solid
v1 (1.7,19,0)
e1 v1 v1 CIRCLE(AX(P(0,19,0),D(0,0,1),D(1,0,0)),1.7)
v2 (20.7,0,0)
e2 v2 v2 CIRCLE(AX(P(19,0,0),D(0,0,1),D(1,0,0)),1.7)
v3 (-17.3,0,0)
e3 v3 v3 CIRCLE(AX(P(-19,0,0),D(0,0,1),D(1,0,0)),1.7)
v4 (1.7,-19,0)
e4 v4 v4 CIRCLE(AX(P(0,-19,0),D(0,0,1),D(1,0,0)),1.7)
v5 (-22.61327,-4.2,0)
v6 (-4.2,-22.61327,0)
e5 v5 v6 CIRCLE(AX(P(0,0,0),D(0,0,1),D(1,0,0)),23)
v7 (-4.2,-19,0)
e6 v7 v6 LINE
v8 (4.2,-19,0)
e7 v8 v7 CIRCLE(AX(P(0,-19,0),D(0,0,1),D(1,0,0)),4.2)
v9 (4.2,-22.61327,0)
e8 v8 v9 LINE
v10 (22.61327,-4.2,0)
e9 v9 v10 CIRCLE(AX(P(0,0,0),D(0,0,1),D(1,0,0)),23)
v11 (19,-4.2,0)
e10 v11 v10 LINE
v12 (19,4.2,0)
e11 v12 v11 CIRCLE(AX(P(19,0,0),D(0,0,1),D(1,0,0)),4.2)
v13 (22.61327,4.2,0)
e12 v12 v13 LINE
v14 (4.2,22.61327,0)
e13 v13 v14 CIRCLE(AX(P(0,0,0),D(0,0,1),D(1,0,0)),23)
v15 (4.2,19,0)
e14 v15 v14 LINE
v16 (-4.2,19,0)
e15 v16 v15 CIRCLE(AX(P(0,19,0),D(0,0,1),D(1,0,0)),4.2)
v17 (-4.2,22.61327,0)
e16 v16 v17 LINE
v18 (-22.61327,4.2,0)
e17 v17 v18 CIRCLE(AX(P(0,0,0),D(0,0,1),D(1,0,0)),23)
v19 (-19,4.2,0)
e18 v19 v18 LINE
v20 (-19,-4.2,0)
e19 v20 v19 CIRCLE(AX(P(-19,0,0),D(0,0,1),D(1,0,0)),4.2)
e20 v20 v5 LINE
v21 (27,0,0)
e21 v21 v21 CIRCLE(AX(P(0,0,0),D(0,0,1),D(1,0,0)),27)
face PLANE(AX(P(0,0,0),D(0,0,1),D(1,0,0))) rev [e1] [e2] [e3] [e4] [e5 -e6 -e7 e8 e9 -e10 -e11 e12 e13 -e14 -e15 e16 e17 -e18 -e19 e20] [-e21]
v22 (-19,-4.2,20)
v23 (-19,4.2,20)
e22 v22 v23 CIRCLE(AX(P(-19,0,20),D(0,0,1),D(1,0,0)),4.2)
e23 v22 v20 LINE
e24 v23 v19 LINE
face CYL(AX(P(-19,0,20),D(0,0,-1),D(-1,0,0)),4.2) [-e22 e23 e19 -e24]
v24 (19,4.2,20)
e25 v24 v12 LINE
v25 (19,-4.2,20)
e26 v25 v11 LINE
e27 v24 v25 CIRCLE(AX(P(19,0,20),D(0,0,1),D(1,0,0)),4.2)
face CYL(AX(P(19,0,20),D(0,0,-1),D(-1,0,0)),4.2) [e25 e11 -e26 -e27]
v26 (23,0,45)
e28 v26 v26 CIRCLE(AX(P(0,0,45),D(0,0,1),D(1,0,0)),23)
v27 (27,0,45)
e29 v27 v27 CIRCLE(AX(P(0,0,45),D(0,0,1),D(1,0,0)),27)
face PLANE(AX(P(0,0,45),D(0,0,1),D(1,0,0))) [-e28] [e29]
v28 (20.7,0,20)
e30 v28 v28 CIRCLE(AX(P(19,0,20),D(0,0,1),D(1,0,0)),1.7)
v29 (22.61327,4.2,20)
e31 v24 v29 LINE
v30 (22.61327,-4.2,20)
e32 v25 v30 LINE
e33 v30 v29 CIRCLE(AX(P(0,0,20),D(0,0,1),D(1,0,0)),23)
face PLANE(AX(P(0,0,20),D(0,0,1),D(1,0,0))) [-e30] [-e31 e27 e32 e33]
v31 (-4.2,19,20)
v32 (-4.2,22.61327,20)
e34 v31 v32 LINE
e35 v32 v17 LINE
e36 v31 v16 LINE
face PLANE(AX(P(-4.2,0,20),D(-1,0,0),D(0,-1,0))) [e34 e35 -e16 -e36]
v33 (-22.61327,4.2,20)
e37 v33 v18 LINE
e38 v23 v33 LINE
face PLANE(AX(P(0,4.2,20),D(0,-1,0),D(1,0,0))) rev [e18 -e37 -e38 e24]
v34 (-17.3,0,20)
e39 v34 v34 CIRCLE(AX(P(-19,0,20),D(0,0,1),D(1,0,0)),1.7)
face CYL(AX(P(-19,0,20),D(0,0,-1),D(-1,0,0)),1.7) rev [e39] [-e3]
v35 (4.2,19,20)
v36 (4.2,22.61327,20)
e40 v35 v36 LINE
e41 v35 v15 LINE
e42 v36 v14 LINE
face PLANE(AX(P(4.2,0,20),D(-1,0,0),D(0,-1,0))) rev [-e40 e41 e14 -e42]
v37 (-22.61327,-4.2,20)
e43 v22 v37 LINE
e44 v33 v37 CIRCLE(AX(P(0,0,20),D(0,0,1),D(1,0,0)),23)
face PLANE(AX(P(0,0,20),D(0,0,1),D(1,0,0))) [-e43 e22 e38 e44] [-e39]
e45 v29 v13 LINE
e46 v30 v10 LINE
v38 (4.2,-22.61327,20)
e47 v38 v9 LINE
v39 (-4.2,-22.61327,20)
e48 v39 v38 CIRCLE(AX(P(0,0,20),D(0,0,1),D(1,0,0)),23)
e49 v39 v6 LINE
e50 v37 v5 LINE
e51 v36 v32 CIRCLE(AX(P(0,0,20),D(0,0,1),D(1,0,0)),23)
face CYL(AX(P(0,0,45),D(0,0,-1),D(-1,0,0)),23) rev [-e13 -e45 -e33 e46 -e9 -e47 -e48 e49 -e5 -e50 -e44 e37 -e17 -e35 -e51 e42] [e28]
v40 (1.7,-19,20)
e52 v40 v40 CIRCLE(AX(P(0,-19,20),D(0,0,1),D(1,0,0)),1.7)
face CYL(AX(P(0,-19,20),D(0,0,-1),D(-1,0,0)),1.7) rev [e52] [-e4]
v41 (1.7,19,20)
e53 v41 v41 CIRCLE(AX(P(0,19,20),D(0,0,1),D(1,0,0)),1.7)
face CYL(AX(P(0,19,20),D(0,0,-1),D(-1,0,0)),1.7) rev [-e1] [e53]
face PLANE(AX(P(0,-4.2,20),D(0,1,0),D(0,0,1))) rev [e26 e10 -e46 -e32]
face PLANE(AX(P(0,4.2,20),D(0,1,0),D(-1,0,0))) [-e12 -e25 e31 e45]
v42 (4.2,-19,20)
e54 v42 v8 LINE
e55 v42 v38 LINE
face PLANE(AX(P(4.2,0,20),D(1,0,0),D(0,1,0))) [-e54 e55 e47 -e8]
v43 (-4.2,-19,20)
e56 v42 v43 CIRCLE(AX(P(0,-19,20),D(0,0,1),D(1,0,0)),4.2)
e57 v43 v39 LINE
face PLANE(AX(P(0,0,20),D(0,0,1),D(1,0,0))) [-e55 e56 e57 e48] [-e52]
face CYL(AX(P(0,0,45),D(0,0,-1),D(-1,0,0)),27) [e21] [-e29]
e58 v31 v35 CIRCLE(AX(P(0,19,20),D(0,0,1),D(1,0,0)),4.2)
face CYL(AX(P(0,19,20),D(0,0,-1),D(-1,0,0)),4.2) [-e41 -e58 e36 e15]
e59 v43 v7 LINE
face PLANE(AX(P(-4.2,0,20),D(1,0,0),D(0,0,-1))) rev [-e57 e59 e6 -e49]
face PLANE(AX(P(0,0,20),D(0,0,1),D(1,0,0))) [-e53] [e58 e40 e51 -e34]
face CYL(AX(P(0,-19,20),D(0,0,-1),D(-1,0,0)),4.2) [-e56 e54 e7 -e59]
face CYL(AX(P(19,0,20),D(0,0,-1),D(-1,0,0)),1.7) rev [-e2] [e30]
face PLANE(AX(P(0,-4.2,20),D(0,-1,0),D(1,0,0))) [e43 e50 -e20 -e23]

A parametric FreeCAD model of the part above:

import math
import FreeCAD as App
import Part
import Sketcher

doc = App.newDocument("Part")
body = doc.addObject("PartDesign::Body", "Body")

sketch1 = body.newObject("Sketcher::SketchObject", "Sketch")
sketch1.AttachmentSupport = (doc.getObject("XY_Plane"), [""])
sketch1.MapMode = "FlatFace"
sketch1.addGeometry(Part.Circle(App.Vector(0, 0, 0), App.Vector(0, 0, 1), 27), False)
sketch1.addGeometry(Part.Circle(App.Vector(0, 0, 0), App.Vector(0, 0, 1), 23), False)
sketch1.addConstraint(Sketcher.Constraint("Coincident", 0, 3, -1, 1))
sketch1.addConstraint(Sketcher.Constraint("Coincident", 1, 3, -1, 1))
sketch1.addConstraint(Sketcher.Constraint("Diameter", 0, 54.0))
sketch1.addConstraint(Sketcher.Constraint("Diameter", 1, 46.0))
pad1 = body.newObject("PartDesign::Pad", "Pad")
pad1.Profile = sketch1
pad1.Length = 45

sketch2 = body.newObject("Sketcher::SketchObject", "Sketch001")
sketch2.AttachmentSupport = (doc.getObject("XY_Plane"), [""])
sketch2.MapMode = "FlatFace"
sketch2.addGeometry(Part.ArcOfCircle(Part.Circle(App.Vector(0, 0, 0), App.Vector(0, 0, 1), 23), math.radians(0), math.radians(10.52)), False)
sketch2.addGeometry(Part.LineSegment(App.Vector(22.6, 4.2, 0), App.Vector(19, 4.2, 0)), False)
sketch2.addGeometry(Part.ArcOfCircle(Part.Circle(App.Vector(19, 0, 0), App.Vector(0, 0, 1), 4.2), math.radians(90), math.radians(270)), False)
sketch2.addGeometry(Part.LineSegment(App.Vector(19, -4.2, 0), App.Vector(22.6, -4.2, 0)), False)
sketch2.addGeometry(Part.ArcOfCircle(Part.Circle(App.Vector(0, 0, 0), App.Vector(0, 0, 1), 23), math.radians(-10.52), math.radians(0)), False)
sketch2.addGeometry(Part.Circle(App.Vector(19, 0, 0), App.Vector(0, 0, 1), 1.7), False)
sketch2.addGeometry(Part.LineSegment(App.Vector(-4.2, -19, 0), App.Vector(-4.2, -22.6, 0)), False)
sketch2.addGeometry(Part.ArcOfCircle(Part.Circle(App.Vector(0, 0, 0), App.Vector(0, 0, 1), 23), math.radians(-101), math.radians(-79)), False)
sketch2.addGeometry(Part.LineSegment(App.Vector(4.2, -22.6, 0), App.Vector(4.2, -19, 0)), False)
sketch2.addGeometry(Part.ArcOfCircle(Part.Circle(App.Vector(0, -19, 0), App.Vector(0, 0, 1), 4.2), math.radians(0), math.radians(180)), False)
sketch2.addGeometry(Part.Circle(App.Vector(0, -19, 0), App.Vector(0, 0, 1), 1.7), False)
sketch2.addGeometry(Part.LineSegment(App.Vector(-19, 4.2, 0), App.Vector(-22.6, 4.2, 0)), False)
sketch2.addGeometry(Part.ArcOfCircle(Part.Circle(App.Vector(0, 0, 0), App.Vector(0, 0, 1), 23), math.radians(169), math.radians(191)), False)
sketch2.addGeometry(Part.LineSegment(App.Vector(-22.6, -4.2, 0), App.Vector(-19, -4.2, 0)), False)
sketch2.addGeometry(Part.ArcOfCircle(Part.Circle(App.Vector(-19, 0, 0), App.Vector(0, 0, 1), 4.2), math.radians(-90), math.radians(90)), False)
sketch2.addGeometry(Part.Circle(App.Vector(-19, 0, 0), App.Vector(0, 0, 1), 1.7), False)
sketch2.addGeometry(Part.LineSegment(App.Vector(-4.2, 22.6, 0), App.Vector(-4.2, 19, 0)), False)
sketch2.addGeometry(Part.ArcOfCircle(Part.Circle(App.Vector(0, 19, 0), App.Vector(0, 0, 1), 4.2), math.radians(180), math.radians(360)), False)
sketch2.addGeometry(Part.LineSegment(App.Vector(4.2, 19, 0), App.Vector(4.2, 22.6, 0)), False)
sketch2.addGeometry(Part.ArcOfCircle(Part.Circle(App.Vector(0, 0, 0), App.Vector(0, 0, 1), 23), math.radians(79), math.radians(101)), False)
sketch2.addGeometry(Part.Circle(App.Vector(0, 19, 0), App.Vector(0, 0, 1), 1.7), False)
sketch2.addConstraint(Sketcher.Constraint("Coincident", 0, 2, 1, 1))
sketch2.addConstraint(Sketcher.Constraint("Tangent", 1, 2, 2, 1))
sketch2.addConstraint(Sketcher.Constraint("Tangent", 2, 2, 3, 1))
sketch2.addConstraint(Sketcher.Constraint("Coincident", 3, 2, 4, 1))
sketch2.addConstraint(Sketcher.Constraint("Tangent", 4, 2, 0, 1))
sketch2.addConstraint(Sketcher.Constraint("Coincident", 6, 2, 7, 1))
sketch2.addConstraint(Sketcher.Constraint("Coincident", 7, 2, 8, 1))
sketch2.addConstraint(Sketcher.Constraint("Tangent", 8, 2, 9, 1))
sketch2.addConstraint(Sketcher.Constraint("Tangent", 9, 2, 6, 1))
sketch2.addConstraint(Sketcher.Constraint("Coincident", 11, 2, 12, 1))
sketch2.addConstraint(Sketcher.Constraint("Coincident", 12, 2, 13, 1))
sketch2.addConstraint(Sketcher.Constraint("Tangent", 13, 2, 14, 1))
sketch2.addConstraint(Sketcher.Constraint("Tangent", 14, 2, 11, 1))
sketch2.addConstraint(Sketcher.Constraint("Tangent", 16, 2, 17, 1))
sketch2.addConstraint(Sketcher.Constraint("Tangent", 17, 2, 18, 1))
sketch2.addConstraint(Sketcher.Constraint("Coincident", 18, 2, 19, 1))
sketch2.addConstraint(Sketcher.Constraint("Coincident", 19, 2, 16, 1))
sketch2.addConstraint(Sketcher.Constraint("Horizontal", 1))
sketch2.addConstraint(Sketcher.Constraint("Horizontal", 3))
sketch2.addConstraint(Sketcher.Constraint("Vertical", 6))
sketch2.addConstraint(Sketcher.Constraint("Vertical", 8))
sketch2.addConstraint(Sketcher.Constraint("Horizontal", 11))
sketch2.addConstraint(Sketcher.Constraint("Horizontal", 13))
sketch2.addConstraint(Sketcher.Constraint("Vertical", 16))
sketch2.addConstraint(Sketcher.Constraint("Vertical", 18))
sketch2.addConstraint(Sketcher.Constraint("Coincident", 0, 3, -1, 1))
sketch2.addConstraint(Sketcher.Constraint("Coincident", 7, 3, -1, 1))
sketch2.addConstraint(Sketcher.Constraint("Coincident", 12, 3, -1, 1))
sketch2.addConstraint(Sketcher.Constraint("Coincident", 19, 3, -1, 1))
sketch2.addConstraint(Sketcher.Constraint("Coincident", 5, 3, 2, 3))
sketch2.addConstraint(Sketcher.Constraint("Coincident", 10, 3, 9, 3))
sketch2.addConstraint(Sketcher.Constraint("Coincident", 15, 3, 14, 3))
sketch2.addConstraint(Sketcher.Constraint("Coincident", 20, 3, 17, 3))
sketch2.addConstraint(Sketcher.Constraint("Equal", 0, 4))
sketch2.addConstraint(Sketcher.Constraint("Equal", 4, 7))
sketch2.addConstraint(Sketcher.Constraint("Equal", 2, 9))
sketch2.addConstraint(Sketcher.Constraint("Equal", 5, 10))
sketch2.addConstraint(Sketcher.Constraint("Equal", 7, 12))
sketch2.addConstraint(Sketcher.Constraint("Equal", 9, 14))
sketch2.addConstraint(Sketcher.Constraint("Equal", 10, 15))
sketch2.addConstraint(Sketcher.Constraint("Equal", 14, 17))
sketch2.addConstraint(Sketcher.Constraint("Equal", 12, 19))
sketch2.addConstraint(Sketcher.Constraint("Equal", 15, 20))
sketch2.addConstraint(Sketcher.Constraint("Symmetric", 2, 3, 14, 3, -1, 1))
sketch2.addConstraint(Sketcher.Constraint("Symmetric", 9, 3, 17, 3, -1, 1))
sketch2.addConstraint(Sketcher.Constraint("PointOnObject", 2, 3, -1))
sketch2.addConstraint(Sketcher.Constraint("PointOnObject", 9, 3, -2))
sketch2.addConstraint(Sketcher.Constraint("PointOnObject", 4, 2, -1))
sketch2.addConstraint(Sketcher.Constraint("Equal", 13, 6))
sketch2.addConstraint(Sketcher.Constraint("Radius", 0, 23.0))
sketch2.addConstraint(Sketcher.Constraint("Diameter", 5, 3.4))
sketch2.addConstraint(Sketcher.Constraint("Radius", 2, 4.2))
sketch2.addConstraint(Sketcher.Constraint("DistanceX", -1, 1, 2, 3, 19.0))
pad2 = body.newObject("PartDesign::Pad", "Pad001")
pad2.Profile = sketch2
pad2.Length = 20

doc.recompute()
